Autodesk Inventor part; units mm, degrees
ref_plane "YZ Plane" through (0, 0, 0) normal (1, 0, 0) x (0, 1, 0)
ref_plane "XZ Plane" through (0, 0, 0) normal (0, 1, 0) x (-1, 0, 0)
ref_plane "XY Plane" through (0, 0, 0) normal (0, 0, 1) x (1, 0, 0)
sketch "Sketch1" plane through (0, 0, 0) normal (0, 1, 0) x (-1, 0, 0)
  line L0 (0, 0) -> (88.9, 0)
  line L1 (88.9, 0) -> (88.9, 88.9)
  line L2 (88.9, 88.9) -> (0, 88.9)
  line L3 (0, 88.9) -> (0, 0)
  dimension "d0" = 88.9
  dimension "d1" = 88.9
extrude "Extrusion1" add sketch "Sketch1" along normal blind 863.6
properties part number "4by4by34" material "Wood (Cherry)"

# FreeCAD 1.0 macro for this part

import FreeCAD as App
import Part
import Sketcher
Q = App.Units.Quantity


def add_polygon(sketch, points):
    """Adds a closed chain of lines whose ends are joined by coincident constraints."""
    first, n = sketch.GeometryCount, len(points)
    for a, b in zip(points, points[1:] + points[:1]):
        sketch.addGeometry(Part.LineSegment(App.Vector(*a, 0), App.Vector(*b, 0)), False)
    for i in range(n):
        sketch.addConstraint(Sketcher.Constraint("Coincident", first + i, 2, first + (i + 1) % n, 1))

doc = App.newDocument("Part")
body = doc.addObject("PartDesign::Body", "Body")

# Sketch on XZ plane
sketch1 = body.newObject("Sketcher::SketchObject", "Sketch")
sketch1.AttachmentSupport = (doc.getObject("XZ_Plane"), [""])
sketch1.MapMode = "FlatFace"
add_polygon(sketch1, [(0, 88.9), (0, 0), (-88.9, 0), (-88.9, 88.9)])  # lines 0-3
sketch1.addConstraint(Sketcher.Constraint("Vertical", 0))
sketch1.addConstraint(Sketcher.Constraint("Horizontal", 1))
sketch1.addConstraint(Sketcher.Constraint("Vertical", 2))
sketch1.addConstraint(Sketcher.Constraint("Horizontal", 3))
sketch1.addConstraint(Sketcher.Constraint("Coincident", 0, 2, -1, 1))
sketch1.addConstraint(Sketcher.Constraint("Equal", 3, 0))
sketch1.addConstraint(Sketcher.Constraint("DistanceX", 1, 2, 1, 1, Q("3.5 in")))
pad1 = body.newObject("PartDesign::Pad", "Pad")
pad1.Profile = sketch1
pad1.Length = Q("34 in")
pad1.Reversed = True

doc.recompute()
